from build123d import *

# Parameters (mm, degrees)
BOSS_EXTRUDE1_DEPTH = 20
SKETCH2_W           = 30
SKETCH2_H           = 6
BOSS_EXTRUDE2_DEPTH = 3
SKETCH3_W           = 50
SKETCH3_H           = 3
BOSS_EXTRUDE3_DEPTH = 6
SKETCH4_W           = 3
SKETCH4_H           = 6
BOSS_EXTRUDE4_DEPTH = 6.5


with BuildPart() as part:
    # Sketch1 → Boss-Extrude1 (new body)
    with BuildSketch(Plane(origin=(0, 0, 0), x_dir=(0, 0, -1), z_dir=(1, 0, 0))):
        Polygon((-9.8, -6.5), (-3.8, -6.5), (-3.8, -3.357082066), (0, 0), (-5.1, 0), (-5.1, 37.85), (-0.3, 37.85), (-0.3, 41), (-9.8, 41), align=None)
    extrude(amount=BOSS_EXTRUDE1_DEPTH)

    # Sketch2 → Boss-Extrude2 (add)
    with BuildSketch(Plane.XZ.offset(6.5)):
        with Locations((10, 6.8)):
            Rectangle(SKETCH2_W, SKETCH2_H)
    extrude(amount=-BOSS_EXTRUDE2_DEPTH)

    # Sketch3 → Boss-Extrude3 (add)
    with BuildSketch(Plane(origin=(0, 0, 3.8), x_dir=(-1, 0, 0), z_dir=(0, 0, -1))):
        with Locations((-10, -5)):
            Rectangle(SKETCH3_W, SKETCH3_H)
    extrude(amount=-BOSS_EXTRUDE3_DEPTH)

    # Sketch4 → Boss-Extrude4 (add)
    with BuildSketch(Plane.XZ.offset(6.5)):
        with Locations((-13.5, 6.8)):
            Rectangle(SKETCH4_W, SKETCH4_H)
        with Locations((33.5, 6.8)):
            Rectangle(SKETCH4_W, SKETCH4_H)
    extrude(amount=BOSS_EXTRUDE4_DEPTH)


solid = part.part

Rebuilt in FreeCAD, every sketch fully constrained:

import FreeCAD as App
import Part
import Sketcher
from FreeCAD import Vector
Q = App.Units.Quantity


def add_polygon(sketch, points):
    """Adds a closed chain of lines whose ends are joined by coincident constraints."""
    first, n = sketch.GeometryCount, len(points)
    for a, b in zip(points, points[1:] + points[:1]):
        sketch.addGeometry(Part.LineSegment(App.Vector(*a, 0), App.Vector(*b, 0)), False)
    for i in range(n):
        sketch.addConstraint(Sketcher.Constraint("Coincident", first + i, 2, first + (i + 1) % n, 1))

doc = App.newDocument("Part")
body = doc.addObject("PartDesign::Body", "Body")

sketch1 = doc.addObject("Sketcher::SketchObject", "Sketch")
body.addObject(sketch1)
sketch1.AttachmentSupport = (doc.YZ_Plane, [""])
sketch1.MapMode = "FlatFace"
add_polygon(sketch1, [(-6.5, 9.8), (-6.5, 3.8), (-3.4, 3.8), (0, 0), (0, 5.1), (37.9, 5.1), (37.9, 0.3), (41, 0.3), (41, 9.8)])
sketch1.addConstraint([
    Sketcher.Constraint("Vertical", 0),
    Sketcher.Constraint("Horizontal", 1),
    Sketcher.Constraint("Vertical", 3),
    Sketcher.Constraint("Horizontal", 4),
    Sketcher.Constraint("Vertical", 5),
    Sketcher.Constraint("Horizontal", 6),
    Sketcher.Constraint("Vertical", 7),
    Sketcher.Constraint("Horizontal", 8),
    Sketcher.Constraint("Coincident", 2, 2, -1, 1),
    Sketcher.Constraint("DistanceY", 0, 2, 0, 1, Q("6 mm")),
    Sketcher.Constraint("DistanceX", 8, 2, 8, 1, Q("47.5 mm")),
    Sketcher.Constraint("DistanceY", 3, 1, 3, 2, Q("5.1 mm")),
    Sketcher.Constraint("DistanceY", 5, 2, 5, 1, Q("4.8 mm")),
    Sketcher.Constraint("DistanceY", 7, 1, 7, 2, Q("9.5 mm")),
    Sketcher.Constraint("DistanceX", -1, 1, 6, 2, Q("41 mm")),
    Sketcher.Constraint("DistanceX", 4, 1, 4, 2, Q("37.85 mm")),
    Sketcher.Constraint("DistanceX", 1, 1, 1, 2, Q("3.142918 mm")),
])
pad1 = doc.addObject("PartDesign::Pad", "Pad")
body.addObject(pad1)
pad1.Profile = sketch1
pad1.Length = 20

sketch2 = doc.addObject("Sketcher::SketchObject", "Sketch001")
body.addObject(sketch2)
sketch2.AttachmentSupport = (doc.XZ_Plane, [""])
sketch2.MapMode = "FlatFace"
sketch2.AttachmentOffset = App.Placement(Vector(0, 0, 6.5), App.Rotation())
add_polygon(sketch2, [(-5, 10), (-5, 4), (25, 4), (25, 10)])
sketch2.addConstraint([
    Sketcher.Constraint("Vertical", 0),
    Sketcher.Constraint("Horizontal", 1),
    Sketcher.Constraint("Vertical", 2),
    Sketcher.Constraint("Horizontal", 3),
    Sketcher.Constraint("DistanceX", 1, 1, 1, 2, Q("30 mm")),
    Sketcher.Constraint("DistanceY", 0, 2, 0, 1, Q("6 mm")),
    Sketcher.Constraint("DistanceX", 0, 2, -1, 1, Q("5 mm")),
    Sketcher.Constraint("DistanceY", -1, 1, 0, 2, Q("3.8 mm")),
])
pad2 = doc.addObject("PartDesign::Pad", "Pad001")
body.addObject(pad2)
pad2.Profile = sketch2
pad2.Length = 3
pad2.Reversed = True

sketch3 = doc.addObject("Sketcher::SketchObject", "Sketch002")
body.addObject(sketch3)
sketch3.AttachmentSupport = (doc.XY_Plane, [""])
sketch3.MapMode = "FlatFace"
sketch3.AttachmentOffset = App.Placement(Vector(0, 0, 3.8), App.Rotation())
add_polygon(sketch3, [(35, -3.5), (35, -6.5), (-15, -6.5), (-15, -3.5)])
sketch3.addConstraint([
    Sketcher.Constraint("Vertical", 0),
    Sketcher.Constraint("Horizontal", 1),
    Sketcher.Constraint("Vertical", 2),
    Sketcher.Constraint("Horizontal", 3),
    Sketcher.Constraint("DistanceX", 1, 2, 1, 1, Q("50 mm")),
    Sketcher.Constraint("DistanceY", 0, 2, 0, 1, Q("3 mm")),
    Sketcher.Constraint("DistanceX", -1, 1, 0, 2, Q("35 mm")),
    Sketcher.Constraint("DistanceY", 0, 2, -1, 1, Q("6.5 mm")),
])
pad3 = doc.addObject("PartDesign::Pad", "Pad002")
body.addObject(pad3)
pad3.Profile = sketch3
pad3.Length = 6

sketch4 = doc.addObject("Sketcher::SketchObject", "Sketch003")
body.addObject(sketch4)
sketch4.AttachmentSupport = (doc.XZ_Plane, [""])
sketch4.MapMode = "FlatFace"
sketch4.AttachmentOffset = App.Placement(Vector(0, 0, 6.5), App.Rotation())
add_polygon(sketch4, [(-15, 9.8), (-15, 3.8), (-12, 3.8), (-12, 9.8)])
add_polygon(sketch4, [(32, 9.8), (32, 3.8), (35, 3.8), (35, 9.8)])
sketch4.addConstraint([
    Sketcher.Constraint("Vertical", 0),
    Sketcher.Constraint("Horizontal", 1),
    Sketcher.Constraint("Vertical", 2),
    Sketcher.Constraint("Horizontal", 3),
    Sketcher.Constraint("Vertical", 4),
    Sketcher.Constraint("Horizontal", 5),
    Sketcher.Constraint("Vertical", 6),
    Sketcher.Constraint("Horizontal", 7),
    Sketcher.Constraint("Horizontal", 1, 2, 4, 2),
    Sketcher.Constraint("Horizontal", 3, 2, 6, 2),
    Sketcher.Constraint("Equal", 3, 5),
    Sketcher.Constraint("DistanceX", 1, 1, 1, 2, Q("3 mm")),
    Sketcher.Constraint("DistanceY", 0, 2, 0, 1, Q("6 mm")),
    Sketcher.Constraint("DistanceX", 0, 2, -1, 1, Q("15 mm")),
    Sketcher.Constraint("DistanceX", -1, 1, 4, 2, Q("32 mm")),
    Sketcher.Constraint("DistanceY", -1, 1, 0, 2, Q("3.8 mm")),
])
pad4 = doc.addObject("PartDesign::Pad", "Pad003")
body.addObject(pad4)
pad4.Profile = sketch4
pad4.Length = 6.5

doc.recompute()
